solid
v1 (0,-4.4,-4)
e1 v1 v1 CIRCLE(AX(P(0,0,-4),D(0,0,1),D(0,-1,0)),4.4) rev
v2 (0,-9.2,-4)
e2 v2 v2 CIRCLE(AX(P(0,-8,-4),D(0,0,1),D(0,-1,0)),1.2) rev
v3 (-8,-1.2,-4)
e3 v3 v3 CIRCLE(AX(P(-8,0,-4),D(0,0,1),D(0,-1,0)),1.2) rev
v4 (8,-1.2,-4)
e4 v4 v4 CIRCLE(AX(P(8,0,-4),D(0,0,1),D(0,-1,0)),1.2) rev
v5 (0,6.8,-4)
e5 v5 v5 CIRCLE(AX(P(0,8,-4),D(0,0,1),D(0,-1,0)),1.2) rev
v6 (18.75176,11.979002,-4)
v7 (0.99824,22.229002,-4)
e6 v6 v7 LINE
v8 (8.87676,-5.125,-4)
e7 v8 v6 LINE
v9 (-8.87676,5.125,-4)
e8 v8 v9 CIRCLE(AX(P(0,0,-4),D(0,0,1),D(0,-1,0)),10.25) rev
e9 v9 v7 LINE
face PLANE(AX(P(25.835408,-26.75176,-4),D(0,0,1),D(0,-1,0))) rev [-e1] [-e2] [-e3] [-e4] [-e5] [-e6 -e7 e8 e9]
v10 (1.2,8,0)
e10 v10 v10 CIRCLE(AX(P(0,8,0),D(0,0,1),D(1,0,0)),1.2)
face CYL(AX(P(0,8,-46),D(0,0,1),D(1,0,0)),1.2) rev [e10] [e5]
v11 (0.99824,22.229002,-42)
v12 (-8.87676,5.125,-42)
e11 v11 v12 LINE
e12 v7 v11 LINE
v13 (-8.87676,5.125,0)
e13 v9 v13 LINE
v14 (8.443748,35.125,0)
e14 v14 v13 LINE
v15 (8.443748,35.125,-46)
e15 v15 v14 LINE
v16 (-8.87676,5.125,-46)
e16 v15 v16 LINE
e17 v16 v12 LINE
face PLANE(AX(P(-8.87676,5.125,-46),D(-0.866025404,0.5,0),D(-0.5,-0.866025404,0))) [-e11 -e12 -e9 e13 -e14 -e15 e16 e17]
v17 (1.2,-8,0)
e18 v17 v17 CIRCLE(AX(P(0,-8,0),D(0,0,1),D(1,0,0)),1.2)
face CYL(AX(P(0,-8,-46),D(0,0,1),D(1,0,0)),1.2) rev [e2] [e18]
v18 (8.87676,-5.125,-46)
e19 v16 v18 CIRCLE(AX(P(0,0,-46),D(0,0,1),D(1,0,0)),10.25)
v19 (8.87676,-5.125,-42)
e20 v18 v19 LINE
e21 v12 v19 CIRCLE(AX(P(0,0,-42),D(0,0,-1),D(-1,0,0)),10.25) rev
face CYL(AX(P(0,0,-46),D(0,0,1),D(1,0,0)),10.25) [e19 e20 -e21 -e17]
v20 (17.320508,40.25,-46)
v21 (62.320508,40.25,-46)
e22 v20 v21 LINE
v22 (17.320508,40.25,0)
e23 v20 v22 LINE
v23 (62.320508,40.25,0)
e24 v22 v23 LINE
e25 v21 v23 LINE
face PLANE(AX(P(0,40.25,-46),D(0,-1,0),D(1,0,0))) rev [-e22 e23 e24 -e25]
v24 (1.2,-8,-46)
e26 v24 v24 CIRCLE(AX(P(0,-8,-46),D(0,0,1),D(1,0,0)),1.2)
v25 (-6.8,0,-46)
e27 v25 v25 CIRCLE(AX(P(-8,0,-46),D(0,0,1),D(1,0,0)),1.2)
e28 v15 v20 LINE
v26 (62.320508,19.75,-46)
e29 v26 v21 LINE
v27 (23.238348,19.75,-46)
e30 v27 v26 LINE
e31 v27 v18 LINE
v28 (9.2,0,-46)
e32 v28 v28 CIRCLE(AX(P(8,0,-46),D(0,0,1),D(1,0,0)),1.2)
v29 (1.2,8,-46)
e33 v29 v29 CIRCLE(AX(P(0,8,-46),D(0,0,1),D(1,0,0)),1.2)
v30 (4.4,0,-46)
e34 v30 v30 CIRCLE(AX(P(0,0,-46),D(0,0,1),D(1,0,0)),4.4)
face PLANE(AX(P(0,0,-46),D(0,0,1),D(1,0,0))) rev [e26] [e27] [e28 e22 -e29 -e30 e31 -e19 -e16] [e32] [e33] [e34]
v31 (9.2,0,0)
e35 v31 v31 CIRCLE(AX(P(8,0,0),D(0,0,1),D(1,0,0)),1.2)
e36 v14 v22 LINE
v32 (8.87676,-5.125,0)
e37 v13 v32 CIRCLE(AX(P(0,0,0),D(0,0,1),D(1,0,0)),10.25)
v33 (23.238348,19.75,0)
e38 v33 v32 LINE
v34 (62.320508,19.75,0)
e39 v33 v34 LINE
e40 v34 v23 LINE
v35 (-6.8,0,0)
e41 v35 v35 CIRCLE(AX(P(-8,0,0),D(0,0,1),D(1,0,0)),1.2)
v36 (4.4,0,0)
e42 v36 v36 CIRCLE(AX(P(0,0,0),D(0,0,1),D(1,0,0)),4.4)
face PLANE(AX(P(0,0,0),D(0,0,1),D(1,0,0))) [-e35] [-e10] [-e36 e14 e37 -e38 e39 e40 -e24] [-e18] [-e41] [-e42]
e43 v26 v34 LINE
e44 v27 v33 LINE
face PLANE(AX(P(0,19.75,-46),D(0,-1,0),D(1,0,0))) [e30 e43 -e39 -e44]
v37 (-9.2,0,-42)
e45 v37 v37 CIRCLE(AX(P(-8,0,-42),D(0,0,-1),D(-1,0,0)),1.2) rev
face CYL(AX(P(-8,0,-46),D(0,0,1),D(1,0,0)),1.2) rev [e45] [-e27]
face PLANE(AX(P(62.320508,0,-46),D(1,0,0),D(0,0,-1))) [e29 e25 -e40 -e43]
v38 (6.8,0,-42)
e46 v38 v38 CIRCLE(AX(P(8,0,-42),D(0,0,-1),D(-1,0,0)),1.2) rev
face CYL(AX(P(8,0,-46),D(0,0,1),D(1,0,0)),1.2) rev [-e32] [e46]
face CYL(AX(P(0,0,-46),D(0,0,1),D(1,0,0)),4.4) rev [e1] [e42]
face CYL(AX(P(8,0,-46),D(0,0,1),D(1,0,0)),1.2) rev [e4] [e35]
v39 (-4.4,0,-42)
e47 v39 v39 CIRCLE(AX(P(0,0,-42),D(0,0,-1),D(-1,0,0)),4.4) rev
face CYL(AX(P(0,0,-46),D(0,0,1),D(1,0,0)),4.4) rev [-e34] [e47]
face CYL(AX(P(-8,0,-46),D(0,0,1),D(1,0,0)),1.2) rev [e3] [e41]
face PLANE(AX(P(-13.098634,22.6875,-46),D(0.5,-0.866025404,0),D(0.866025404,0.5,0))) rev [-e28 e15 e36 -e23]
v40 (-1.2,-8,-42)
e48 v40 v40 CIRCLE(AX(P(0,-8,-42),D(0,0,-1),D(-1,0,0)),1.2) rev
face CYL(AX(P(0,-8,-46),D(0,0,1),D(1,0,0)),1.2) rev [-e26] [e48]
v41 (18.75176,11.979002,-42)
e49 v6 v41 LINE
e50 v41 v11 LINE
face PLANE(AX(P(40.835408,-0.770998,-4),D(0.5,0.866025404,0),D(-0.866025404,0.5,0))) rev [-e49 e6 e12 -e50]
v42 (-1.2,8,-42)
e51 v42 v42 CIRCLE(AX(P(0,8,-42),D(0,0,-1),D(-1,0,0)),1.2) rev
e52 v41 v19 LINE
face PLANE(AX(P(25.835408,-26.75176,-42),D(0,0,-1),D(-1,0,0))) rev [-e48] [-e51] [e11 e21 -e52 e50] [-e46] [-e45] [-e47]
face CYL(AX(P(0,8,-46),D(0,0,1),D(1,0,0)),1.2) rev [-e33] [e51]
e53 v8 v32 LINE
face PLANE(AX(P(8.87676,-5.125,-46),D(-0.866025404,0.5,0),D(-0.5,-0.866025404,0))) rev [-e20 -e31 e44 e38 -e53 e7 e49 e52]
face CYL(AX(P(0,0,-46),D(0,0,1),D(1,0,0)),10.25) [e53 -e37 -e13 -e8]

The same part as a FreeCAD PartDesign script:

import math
import FreeCAD as App
import Part
import Sketcher
Q = App.Units.Quantity

doc = App.newDocument("Part")
params = doc.addObject("Spreadsheet::Sheet", "Params")
for row, (alias, value) in enumerate([
    ("sketch1_diameter", "2.4 mm"),
    ("sketch1_diameter2", "8.8 mm"),
    ("sketch1_width", "45 mm"),
    ("sketch1_radius", "10.25 mm"),
    ("sketch1_height", "20.5 mm"),
    ("pad1_length", "46 mm"),
    ("sketch2_width", "38 mm"),
    ("sketch2_height", "30 mm"),
    ("pocket1_length", "46 mm"),
], start=1):
    params.set(f"A{row}", alias)
    params.set(f"B{row}", "=" + value)
    params.setAlias(f"B{row}", alias)

body = doc.addObject("PartDesign::Body", "Body")

# Sketch on XY plane
sketch1 = doc.addObject("Sketcher::SketchObject", "Sketch")
body.addObject(sketch1)
sketch1.AttachmentSupport = (doc.XY_Plane, [""])
sketch1.MapMode = "FlatFace"
sketch1.addGeometry(Part.LineSegment(App.Vector(8.4, 35.1, 0), App.Vector(-8.9, 5.1, 0)), False)
sketch1.addGeometry(Part.ArcOfCircle(Part.Circle(App.Vector(0, 0, 0), App.Vector(0, 0, 1), 10.2), math.radians(150), math.radians(330)), False)
sketch1.addGeometry(Part.LineSegment(App.Vector(8.9, -5.1, 0), App.Vector(23.2, 19.8, 0)), False)
sketch1.addGeometry(Part.LineSegment(App.Vector(23.2, 19.8, 0), App.Vector(62.3, 19.8, 0)), False)
sketch1.addGeometry(Part.LineSegment(App.Vector(62.3, 19.8, 0), App.Vector(62.3, 40.2, 0)), False)
sketch1.addGeometry(Part.LineSegment(App.Vector(62.3, 40.2, 0), App.Vector(17.3, 40.2, 0)), False)
sketch1.addGeometry(Part.LineSegment(App.Vector(17.3, 40.2, 0), App.Vector(8.4, 35.1, 0)), False)
sketch1.addGeometry(Part.Circle(App.Vector(0, -8, 0), App.Vector(0, 0, 1), 1.2), False)
sketch1.addGeometry(Part.Circle(App.Vector(-8, 0, 0), App.Vector(0, 0, 1), 1.2), False)
sketch1.addGeometry(Part.Circle(App.Vector(0, 0, 0), App.Vector(0, 0, 1), 4.4), False)
sketch1.addGeometry(Part.Circle(App.Vector(8, 0, 0), App.Vector(0, 0, 1), 1.2), False)
sketch1.addGeometry(Part.Circle(App.Vector(0, 8, 0), App.Vector(0, 0, 1), 1.2), False)
sketch1.addConstraint(Sketcher.Constraint("Tangent", 0, 2, 1, 1))
sketch1.addConstraint(Sketcher.Constraint("Tangent", 1, 2, 2, 1))
sketch1.addConstraint(Sketcher.Constraint("Coincident", 2, 2, 3, 1))
sketch1.addConstraint(Sketcher.Constraint("Coincident", 3, 2, 4, 1))
sketch1.addConstraint(Sketcher.Constraint("Coincident", 4, 2, 5, 1))
sketch1.addConstraint(Sketcher.Constraint("Coincident", 5, 2, 6, 1))
sketch1.addConstraint(Sketcher.Constraint("Coincident", 6, 2, 0, 1))
sketch1.addConstraint(Sketcher.Constraint("Horizontal", 3))
sketch1.addConstraint(Sketcher.Constraint("Vertical", 4))
sketch1.addConstraint(Sketcher.Constraint("Horizontal", 5))
sketch1.addConstraint(Sketcher.Constraint("Coincident", 1, 3, -1, 1))
sketch1.addConstraint(Sketcher.Constraint("Coincident", 9, 3, -1, 1))
sketch1.addConstraint(Sketcher.Constraint("Equal", 7, 8))
sketch1.addConstraint(Sketcher.Constraint("Equal", 8, 10))
sketch1.addConstraint(Sketcher.Constraint("Equal", 10, 11))
sketch1.addConstraint(Sketcher.Constraint("Symmetric", 8, 3, 10, 3, -1, 1))
sketch1.addConstraint(Sketcher.Constraint("Symmetric", 7, 3, 11, 3, -1, 1))
sketch1.addConstraint(Sketcher.Constraint("PointOnObject", 7, 3, -2))
sketch1.addConstraint(Sketcher.Constraint("PointOnObject", 8, 3, -1))
sketch1.addConstraint(Sketcher.Constraint("Parallel", 0, 2))
sketch1.addConstraint(Sketcher.Constraint("Diameter", 7, Q("2.4 mm")))
sketch1.addConstraint(Sketcher.Constraint("Diameter", 9, Q("8.8 mm")))
sketch1.addConstraint(Sketcher.Constraint("DistanceX", 5, 2, 5, 1, Q("45 mm")))
sketch1.addConstraint(Sketcher.Constraint("Angle", 0, Q("-120 deg")))
sketch1.addConstraint(Sketcher.Constraint("Angle", 6, Q("-150 deg")))
sketch1.addConstraint(Sketcher.Constraint("Radius", 1, Q("10.25 mm")))
sketch1.addConstraint(Sketcher.Constraint("DistanceY", 4, 1, 4, 2, Q("20.5 mm")))
sketch1.addConstraint(Sketcher.Constraint("DistanceY", 7, 3, -1, 1, Q("8 mm")))
sketch1.addConstraint(Sketcher.Constraint("DistanceX", 8, 3, -1, 1, Q("8 mm")))
sketch1.addConstraint(Sketcher.Constraint("DistanceY", 0, 2, 6, 2, Q("30 mm")))
sketch1.addConstraint(Sketcher.Constraint("Distance", 6, Q("10.25 mm")))
sketch1.setExpression("Constraints[20]", "Params.sketch1_diameter")
sketch1.setExpression("Constraints[21]", "Params.sketch1_diameter2")
sketch1.setExpression("Constraints[22]", "Params.sketch1_width")
sketch1.setExpression("Constraints[25]", "Params.sketch1_radius")
sketch1.setExpression("Constraints[26]", "Params.sketch1_height")
pad1 = doc.addObject("PartDesign::Pad", "Pad")
body.addObject(pad1)
pad1.Profile = sketch1
pad1.setExpression("Length", "Params.pad1_length")
pad1.Reversed = True

# Sketch on an angled plane
sketch2 = doc.addObject("Sketcher::SketchObject", "Sketch001")
body.addObject(sketch2)
sketch2.Placement = App.Placement(App.Vector(-8.87676, 5.125, 0), App.Rotation(App.Vector(0, 0, 1), App.Vector(0.5, 0.866025404, 0), App.Vector(-0.866025404, 0.5, 0), "ZXY"))
sketch2.addGeometry(Part.LineSegment(App.Vector(-42, 20, 0), App.Vector(-42, -10, 0)), False)
sketch2.addGeometry(Part.LineSegment(App.Vector(-42, -10, 0), App.Vector(-4, -10, 0)), False)
sketch2.addGeometry(Part.LineSegment(App.Vector(-4, -10, 0), App.Vector(-4, 20, 0)), False)
sketch2.addGeometry(Part.LineSegment(App.Vector(-4, 20, 0), App.Vector(-42, 20, 0)), False)
sketch2.addConstraint(Sketcher.Constraint("Coincident", 0, 2, 1, 1))
sketch2.addConstraint(Sketcher.Constraint("Coincident", 1, 2, 2, 1))
sketch2.addConstraint(Sketcher.Constraint("Coincident", 2, 2, 3, 1))
sketch2.addConstraint(Sketcher.Constraint("Coincident", 3, 2, 0, 1))
sketch2.addConstraint(Sketcher.Constraint("Vertical", 0))
sketch2.addConstraint(Sketcher.Constraint("Horizontal", 1))
sketch2.addConstraint(Sketcher.Constraint("Vertical", 2))
sketch2.addConstraint(Sketcher.Constraint("Horizontal", 3))
sketch2.addConstraint(Sketcher.Constraint("DistanceX", 1, 1, 1, 2, Q("38 mm")))
sketch2.addConstraint(Sketcher.Constraint("DistanceY", 0, 2, 0, 1, Q("30 mm")))
sketch2.addConstraint(Sketcher.Constraint("DistanceX", 0, 2, -1, 1, Q("42 mm")))
sketch2.addConstraint(Sketcher.Constraint("DistanceY", 0, 2, -1, 1, Q("10.25 mm")))
sketch2.setExpression("Constraints[8]", "Params.sketch2_width")
sketch2.setExpression("Constraints[9]", "Params.sketch2_height")
pocket1 = doc.addObject("PartDesign::Pocket", "Pocket")
body.addObject(pocket1)
pocket1.Profile = sketch2
pocket1.setExpression("Length", "Params.pocket1_length")

doc.recompute()
